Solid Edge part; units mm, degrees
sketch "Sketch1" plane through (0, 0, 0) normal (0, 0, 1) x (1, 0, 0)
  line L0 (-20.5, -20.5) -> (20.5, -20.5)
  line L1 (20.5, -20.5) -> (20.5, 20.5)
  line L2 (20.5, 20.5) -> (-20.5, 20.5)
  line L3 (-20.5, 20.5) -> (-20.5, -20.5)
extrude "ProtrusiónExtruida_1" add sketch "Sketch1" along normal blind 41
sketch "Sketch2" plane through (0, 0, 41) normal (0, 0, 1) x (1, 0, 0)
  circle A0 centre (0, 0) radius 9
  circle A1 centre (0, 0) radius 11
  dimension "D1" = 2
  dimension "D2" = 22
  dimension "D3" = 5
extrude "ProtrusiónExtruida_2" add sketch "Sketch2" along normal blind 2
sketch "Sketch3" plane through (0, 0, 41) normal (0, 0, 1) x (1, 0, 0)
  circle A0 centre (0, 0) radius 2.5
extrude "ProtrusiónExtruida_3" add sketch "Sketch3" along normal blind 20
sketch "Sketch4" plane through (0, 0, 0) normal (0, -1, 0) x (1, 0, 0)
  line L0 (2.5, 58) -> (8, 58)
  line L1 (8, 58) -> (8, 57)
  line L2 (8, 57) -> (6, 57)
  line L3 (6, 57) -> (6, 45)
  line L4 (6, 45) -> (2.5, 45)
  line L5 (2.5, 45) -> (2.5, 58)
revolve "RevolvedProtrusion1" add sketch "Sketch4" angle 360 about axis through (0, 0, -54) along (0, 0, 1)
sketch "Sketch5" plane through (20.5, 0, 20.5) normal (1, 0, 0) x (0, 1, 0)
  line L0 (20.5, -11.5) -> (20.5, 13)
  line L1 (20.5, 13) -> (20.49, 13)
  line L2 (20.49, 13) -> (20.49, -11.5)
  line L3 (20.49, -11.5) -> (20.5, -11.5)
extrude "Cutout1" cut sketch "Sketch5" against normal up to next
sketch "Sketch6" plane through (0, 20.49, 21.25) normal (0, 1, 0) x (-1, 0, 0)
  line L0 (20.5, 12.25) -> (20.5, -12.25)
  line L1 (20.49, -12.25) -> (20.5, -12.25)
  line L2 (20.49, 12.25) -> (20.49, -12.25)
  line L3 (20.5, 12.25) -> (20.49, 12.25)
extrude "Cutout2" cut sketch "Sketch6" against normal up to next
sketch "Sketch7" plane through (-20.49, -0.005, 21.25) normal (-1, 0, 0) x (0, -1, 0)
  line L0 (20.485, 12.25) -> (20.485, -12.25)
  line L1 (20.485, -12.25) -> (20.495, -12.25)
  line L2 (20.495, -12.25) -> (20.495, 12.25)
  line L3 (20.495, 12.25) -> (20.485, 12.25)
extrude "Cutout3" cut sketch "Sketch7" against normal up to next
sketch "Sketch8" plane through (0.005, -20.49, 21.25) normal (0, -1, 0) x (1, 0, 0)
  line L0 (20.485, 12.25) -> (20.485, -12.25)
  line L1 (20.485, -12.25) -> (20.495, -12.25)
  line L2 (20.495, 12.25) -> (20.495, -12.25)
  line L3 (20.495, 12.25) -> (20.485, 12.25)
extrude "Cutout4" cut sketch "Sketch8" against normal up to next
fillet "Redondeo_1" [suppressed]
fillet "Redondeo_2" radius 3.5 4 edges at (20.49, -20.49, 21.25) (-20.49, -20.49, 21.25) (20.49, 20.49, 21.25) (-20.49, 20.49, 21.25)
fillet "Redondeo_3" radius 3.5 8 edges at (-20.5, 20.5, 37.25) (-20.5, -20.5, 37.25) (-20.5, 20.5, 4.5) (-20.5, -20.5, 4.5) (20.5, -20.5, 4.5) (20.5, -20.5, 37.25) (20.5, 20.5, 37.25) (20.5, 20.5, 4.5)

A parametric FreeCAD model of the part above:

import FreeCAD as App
import Part
import Sketcher
from FreeCAD import Vector


def edges_at(feature, points):
    """Names of the edges that pass closest to the given points."""
    edges = feature.Shape.Edges
    near = lambda p: min(range(len(edges)), key=lambda i: edges[i].distToShape(Part.Vertex(*p))[0])
    return sorted({f"Edge{near(p) + 1}" for p in points})

doc = App.newDocument("Part")
body = doc.addObject("PartDesign::Body", "Body")

# Sketch on XY plane
sketch1 = body.newObject("Sketcher::SketchObject", "Sketch")
sketch1.AttachmentSupport = (doc.getObject("XY_Plane"), [""])
sketch1.MapMode = "FlatFace"
sketch1.addGeometry([
    Part.LineSegment(Vector(-20, 20, 0), Vector(-20, -20, 0)),
    Part.LineSegment(Vector(-20, -20, 0), Vector(20, -20, 0)),
    Part.LineSegment(Vector(20, -20, 0), Vector(20, 20, 0)),
    Part.LineSegment(Vector(20, 20, 0), Vector(-20, 20, 0)),
], False)
sketch1.addConstraint([
    Sketcher.Constraint("Coincident", 0, 2, 1, 1),
    Sketcher.Constraint("Coincident", 1, 2, 2, 1),
    Sketcher.Constraint("Coincident", 2, 2, 3, 1),
    Sketcher.Constraint("Coincident", 3, 2, 0, 1),
    Sketcher.Constraint("Vertical", 0),
    Sketcher.Constraint("Horizontal", 1),
    Sketcher.Constraint("Vertical", 2),
    Sketcher.Constraint("Horizontal", 3),
    Sketcher.Constraint("Symmetric", 0, 2, 2, 2, -1, 1),
    Sketcher.Constraint("Equal", 3, 0),
    Sketcher.Constraint("DistanceX", 1, 1, 1, 2, 41.0),
])
pad1 = body.newObject("PartDesign::Pad", "Pad")
pad1.Profile = sketch1
pad1.Length = 41

# Sketch on XY plane
sketch2 = body.newObject("Sketcher::SketchObject", "Sketch001")
sketch2.AttachmentSupport = (doc.getObject("XY_Plane"), [""])
sketch2.MapMode = "FlatFace"
sketch2.AttachmentOffset = App.Placement(Vector(0, 0, 41), App.Rotation())
sketch2.addGeometry([
    Part.Circle(Vector(0, 0, 0), Vector(0, 0, 1), 11),
    Part.Circle(Vector(0, 0, 0), Vector(0, 0, 1), 9),
], False)
sketch2.addConstraint([
    Sketcher.Constraint("Coincident", 0, 3, -1, 1),
    Sketcher.Constraint("Coincident", 1, 3, -1, 1),
    Sketcher.Constraint("Diameter", 0, 22.0),
    Sketcher.Constraint("Diameter", 1, 18.0),
])
pad2 = body.newObject("PartDesign::Pad", "Pad001")
pad2.Profile = sketch2
pad2.Length = 2

# Sketch on XY plane
sketch3 = body.newObject("Sketcher::SketchObject", "Sketch002")
sketch3.AttachmentSupport = (doc.getObject("XY_Plane"), [""])
sketch3.MapMode = "FlatFace"
sketch3.AttachmentOffset = App.Placement(Vector(0, 0, 41), App.Rotation())
sketch3.addGeometry(Part.Circle(Vector(0, 0, 0), Vector(0, 0, 1), 2.5), False)
sketch3.addConstraint([
    Sketcher.Constraint("Coincident", 0, 3, -1, 1),
    Sketcher.Constraint("Diameter", 0, 5.0),
])
pad3 = body.newObject("PartDesign::Pad", "Pad002")
pad3.Profile = sketch3
pad3.Length = 20

# Sketch on XZ plane
sketch4 = body.newObject("Sketcher::SketchObject", "Sketch003")
sketch4.AttachmentSupport = (doc.getObject("XZ_Plane"), [""])
sketch4.MapMode = "FlatFace"
sketch4.addGeometry([
    Part.LineSegment(Vector(8, 58, 0), Vector(2.5, 58, 0)),  # 0
    Part.LineSegment(Vector(2.5, 58, 0), Vector(2.5, 45, 0)),  # 1
    Part.LineSegment(Vector(2.5, 45, 0), Vector(6, 45, 0)),  # 2
    Part.LineSegment(Vector(6, 45, 0), Vector(6, 57, 0)),  # 3
    Part.LineSegment(Vector(6, 57, 0), Vector(8, 57, 0)),  # 4
    Part.LineSegment(Vector(8, 57, 0), Vector(8, 58, 0)),  # 5
], False)
sketch4.addConstraint([
    Sketcher.Constraint("Coincident", 0, 2, 1, 1),
    Sketcher.Constraint("Coincident", 1, 2, 2, 1),
    Sketcher.Constraint("Coincident", 2, 2, 3, 1),
    Sketcher.Constraint("Coincident", 3, 2, 4, 1),
    Sketcher.Constraint("Coincident", 4, 2, 5, 1),
    Sketcher.Constraint("Coincident", 5, 2, 0, 1),
    Sketcher.Constraint("Horizontal", 0),
    Sketcher.Constraint("Vertical", 1),
    Sketcher.Constraint("Horizontal", 2),
    Sketcher.Constraint("Vertical", 3),
    Sketcher.Constraint("Horizontal", 4),
    Sketcher.Constraint("Vertical", 5),
    Sketcher.Constraint("DistanceX", 4, 1, 4, 2, 2.0),
    Sketcher.Constraint("DistanceY", 1, 2, 1, 1, 13.0),
    Sketcher.Constraint("DistanceY", 3, 1, 3, 2, 12.0),
    Sketcher.Constraint("DistanceX", 0, 2, 0, 1, 5.5),
    Sketcher.Constraint("DistanceY", -1, 1, 0, 2, 58.0),
    Sketcher.Constraint("DistanceX", -1, 1, 2, 2, 6.0),
])
revolution = body.newObject("PartDesign::Revolution", "Revolution")
revolution.Profile = sketch4
revolution.ReferenceAxis = (sketch4, ["V_Axis"])
revolution.Angle = 360

# Sketch on YZ plane
sketch5 = body.newObject("Sketcher::SketchObject", "Sketch004")
sketch5.AttachmentSupport = (doc.getObject("YZ_Plane"), [""])
sketch5.MapMode = "FlatFace"
sketch5.AttachmentOffset = App.Placement(Vector(0, 0, 20.5), App.Rotation())
sketch5.addGeometry([
    Part.LineSegment(Vector(20.49, 9, 0), Vector(20.5, 9, 0)),
    Part.LineSegment(Vector(20.5, 9, 0), Vector(20.5, 33.5, 0)),
    Part.LineSegment(Vector(20.5, 33.5, 0), Vector(20.49, 33.5, 0)),
    Part.LineSegment(Vector(20.49, 33.5, 0), Vector(20.49, 9, 0)),
], False)
sketch5.addConstraint([
    Sketcher.Constraint("Coincident", 0, 2, 1, 1),
    Sketcher.Constraint("Coincident", 1, 2, 2, 1),
    Sketcher.Constraint("Coincident", 2, 2, 3, 1),
    Sketcher.Constraint("Coincident", 3, 2, 0, 1),
    Sketcher.Constraint("Horizontal", 0),
    Sketcher.Constraint("Vertical", 1),
    Sketcher.Constraint("Horizontal", 2),
    Sketcher.Constraint("Vertical", 3),
    Sketcher.Constraint("DistanceY", 1, 1, 1, 2, 24.5),
    Sketcher.Constraint("DistanceY", -1, 1, 0, 2, 9.0),
    Sketcher.Constraint("DistanceX", 0, 1, 0, 2, 0.01),
    Sketcher.Constraint("DistanceX", -1, 1, 0, 2, 20.5),
])
pocket1 = body.newObject("PartDesign::Pocket", "Pocket")
pocket1.Profile = sketch5
pocket1.Type = "UpToFirst"

# Sketch on XZ plane
sketch6 = body.newObject("Sketcher::SketchObject", "Sketch005")
sketch6.AttachmentSupport = (doc.getObject("XZ_Plane"), [""])
sketch6.MapMode = "FlatFace"
sketch6.AttachmentOffset = App.Placement(Vector(0, 0, -20.49), App.Rotation())
sketch6.addGeometry([
    Part.LineSegment(Vector(-20.5, 9, 0), Vector(-20.5, 33.5, 0)),
    Part.LineSegment(Vector(-20.5, 33.5, 0), Vector(-20.49, 33.5, 0)),
    Part.LineSegment(Vector(-20.49, 33.5, 0), Vector(-20.49, 9, 0)),
    Part.LineSegment(Vector(-20.49, 9, 0), Vector(-20.5, 9, 0)),
], False)
sketch6.addConstraint([
    Sketcher.Constraint("Coincident", 0, 2, 1, 1),
    Sketcher.Constraint("Coincident", 1, 2, 2, 1),
    Sketcher.Constraint("Coincident", 2, 2, 3, 1),
    Sketcher.Constraint("Coincident", 3, 2, 0, 1),
    Sketcher.Constraint("Vertical", 0),
    Sketcher.Constraint("Horizontal", 1),
    Sketcher.Constraint("Vertical", 2),
    Sketcher.Constraint("Horizontal", 3),
    Sketcher.Constraint("DistanceY", 0, 1, 0, 2, 24.5),
    Sketcher.Constraint("DistanceY", -1, 1, 2, 2, 9.0),
    Sketcher.Constraint("DistanceX", 1, 1, 1, 2, 0.01),
    Sketcher.Constraint("DistanceX", 0, 2, -1, 1, 20.5),
])
pocket2 = body.newObject("PartDesign::Pocket", "Pocket001")
pocket2.Profile = sketch6
pocket2.Type = "UpToFirst"
pocket2.Reversed = True

# Sketch on YZ plane
sketch7 = body.newObject("Sketcher::SketchObject", "Sketch006")
sketch7.AttachmentSupport = (doc.getObject("YZ_Plane"), [""])
sketch7.MapMode = "FlatFace"
sketch7.AttachmentOffset = App.Placement(Vector(0, 0, -20.49), App.Rotation())
sketch7.addGeometry([
    Part.LineSegment(Vector(-20.5, 33.5, 0), Vector(-20.49, 33.5, 0)),
    Part.LineSegment(Vector(-20.49, 33.5, 0), Vector(-20.49, 9, 0)),
    Part.LineSegment(Vector(-20.49, 9, 0), Vector(-20.5, 9, 0)),
    Part.LineSegment(Vector(-20.5, 9, 0), Vector(-20.5, 33.5, 0)),
], False)
sketch7.addConstraint([
    Sketcher.Constraint("Coincident", 0, 2, 1, 1),
    Sketcher.Constraint("Coincident", 1, 2, 2, 1),
    Sketcher.Constraint("Coincident", 2, 2, 3, 1),
    Sketcher.Constraint("Coincident", 3, 2, 0, 1),
    Sketcher.Constraint("Horizontal", 0),
    Sketcher.Constraint("Vertical", 1),
    Sketcher.Constraint("Horizontal", 2),
    Sketcher.Constraint("Vertical", 3),
    Sketcher.Constraint("DistanceY", 1, 2, 1, 1, 24.5),
    Sketcher.Constraint("DistanceY", -1, 1, 1, 2, 9.0),
    Sketcher.Constraint("DistanceX", 0, 1, 0, 2, 0.01),
    Sketcher.Constraint("DistanceX", 2, 2, -1, 1, 20.5),
])
pocket3 = body.newObject("PartDesign::Pocket", "Pocket002")
pocket3.Profile = sketch7
pocket3.Type = "UpToFirst"
pocket3.Reversed = True

# Sketch on XZ plane
sketch8 = body.newObject("Sketcher::SketchObject", "Sketch007")
sketch8.AttachmentSupport = (doc.getObject("XZ_Plane"), [""])
sketch8.MapMode = "FlatFace"
sketch8.AttachmentOffset = App.Placement(Vector(0, 0, 20.49), App.Rotation())
sketch8.addGeometry([
    Part.LineSegment(Vector(20.5, 33.5, 0), Vector(20.49, 33.5, 0)),
    Part.LineSegment(Vector(20.49, 33.5, 0), Vector(20.49, 9, 0)),
    Part.LineSegment(Vector(20.49, 9, 0), Vector(20.5, 9, 0)),
    Part.LineSegment(Vector(20.5, 9, 0), Vector(20.5, 33.5, 0)),
], False)
sketch8.addConstraint([
    Sketcher.Constraint("Coincident", 0, 2, 1, 1),
    Sketcher.Constraint("Coincident", 1, 2, 2, 1),
    Sketcher.Constraint("Coincident", 2, 2, 3, 1),
    Sketcher.Constraint("Coincident", 3, 2, 0, 1),
    Sketcher.Constraint("Horizontal", 0),
    Sketcher.Constraint("Vertical", 1),
    Sketcher.Constraint("Horizontal", 2),
    Sketcher.Constraint("Vertical", 3),
    Sketcher.Constraint("DistanceY", 1, 2, 1, 1, 24.5),
    Sketcher.Constraint("DistanceY", -1, 1, 1, 2, 9.0),
    Sketcher.Constraint("DistanceX", 0, 2, 0, 1, 0.01),
    Sketcher.Constraint("DistanceX", -1, 1, 2, 2, 20.5),
])
pocket4 = body.newObject("PartDesign::Pocket", "Pocket003")
pocket4.Profile = sketch8
pocket4.Type = "UpToFirst"
doc.recompute()

fillet = body.newObject("PartDesign::Fillet", "Fillet")
fillet.Base = (pocket4, edges_at(pocket4, [
    (20.49, -20.49, 21.25),
    (-20.49, -20.49, 21.25),
    (20.49, 20.49, 21.25),
    (-20.49, 20.49, 21.25),
]))
fillet.Radius = 3.5
doc.recompute()

fillet2 = body.newObject("PartDesign::Fillet", "Fillet001")
fillet2.Base = (fillet, edges_at(fillet, [
    (-20.5, 20.5, 37.25),
    (-20.5, -20.5, 37.25),
    (-20.5, 20.5, 4.5),
    (-20.5, -20.5, 4.5),
    (20.5, -20.5, 4.5),
    (20.5, -20.5, 37.25),
    (20.5, 20.5, 37.25),
    (20.5, 20.5, 4.5),
]))
fillet2.Radius = 3.5

doc.recompute()
